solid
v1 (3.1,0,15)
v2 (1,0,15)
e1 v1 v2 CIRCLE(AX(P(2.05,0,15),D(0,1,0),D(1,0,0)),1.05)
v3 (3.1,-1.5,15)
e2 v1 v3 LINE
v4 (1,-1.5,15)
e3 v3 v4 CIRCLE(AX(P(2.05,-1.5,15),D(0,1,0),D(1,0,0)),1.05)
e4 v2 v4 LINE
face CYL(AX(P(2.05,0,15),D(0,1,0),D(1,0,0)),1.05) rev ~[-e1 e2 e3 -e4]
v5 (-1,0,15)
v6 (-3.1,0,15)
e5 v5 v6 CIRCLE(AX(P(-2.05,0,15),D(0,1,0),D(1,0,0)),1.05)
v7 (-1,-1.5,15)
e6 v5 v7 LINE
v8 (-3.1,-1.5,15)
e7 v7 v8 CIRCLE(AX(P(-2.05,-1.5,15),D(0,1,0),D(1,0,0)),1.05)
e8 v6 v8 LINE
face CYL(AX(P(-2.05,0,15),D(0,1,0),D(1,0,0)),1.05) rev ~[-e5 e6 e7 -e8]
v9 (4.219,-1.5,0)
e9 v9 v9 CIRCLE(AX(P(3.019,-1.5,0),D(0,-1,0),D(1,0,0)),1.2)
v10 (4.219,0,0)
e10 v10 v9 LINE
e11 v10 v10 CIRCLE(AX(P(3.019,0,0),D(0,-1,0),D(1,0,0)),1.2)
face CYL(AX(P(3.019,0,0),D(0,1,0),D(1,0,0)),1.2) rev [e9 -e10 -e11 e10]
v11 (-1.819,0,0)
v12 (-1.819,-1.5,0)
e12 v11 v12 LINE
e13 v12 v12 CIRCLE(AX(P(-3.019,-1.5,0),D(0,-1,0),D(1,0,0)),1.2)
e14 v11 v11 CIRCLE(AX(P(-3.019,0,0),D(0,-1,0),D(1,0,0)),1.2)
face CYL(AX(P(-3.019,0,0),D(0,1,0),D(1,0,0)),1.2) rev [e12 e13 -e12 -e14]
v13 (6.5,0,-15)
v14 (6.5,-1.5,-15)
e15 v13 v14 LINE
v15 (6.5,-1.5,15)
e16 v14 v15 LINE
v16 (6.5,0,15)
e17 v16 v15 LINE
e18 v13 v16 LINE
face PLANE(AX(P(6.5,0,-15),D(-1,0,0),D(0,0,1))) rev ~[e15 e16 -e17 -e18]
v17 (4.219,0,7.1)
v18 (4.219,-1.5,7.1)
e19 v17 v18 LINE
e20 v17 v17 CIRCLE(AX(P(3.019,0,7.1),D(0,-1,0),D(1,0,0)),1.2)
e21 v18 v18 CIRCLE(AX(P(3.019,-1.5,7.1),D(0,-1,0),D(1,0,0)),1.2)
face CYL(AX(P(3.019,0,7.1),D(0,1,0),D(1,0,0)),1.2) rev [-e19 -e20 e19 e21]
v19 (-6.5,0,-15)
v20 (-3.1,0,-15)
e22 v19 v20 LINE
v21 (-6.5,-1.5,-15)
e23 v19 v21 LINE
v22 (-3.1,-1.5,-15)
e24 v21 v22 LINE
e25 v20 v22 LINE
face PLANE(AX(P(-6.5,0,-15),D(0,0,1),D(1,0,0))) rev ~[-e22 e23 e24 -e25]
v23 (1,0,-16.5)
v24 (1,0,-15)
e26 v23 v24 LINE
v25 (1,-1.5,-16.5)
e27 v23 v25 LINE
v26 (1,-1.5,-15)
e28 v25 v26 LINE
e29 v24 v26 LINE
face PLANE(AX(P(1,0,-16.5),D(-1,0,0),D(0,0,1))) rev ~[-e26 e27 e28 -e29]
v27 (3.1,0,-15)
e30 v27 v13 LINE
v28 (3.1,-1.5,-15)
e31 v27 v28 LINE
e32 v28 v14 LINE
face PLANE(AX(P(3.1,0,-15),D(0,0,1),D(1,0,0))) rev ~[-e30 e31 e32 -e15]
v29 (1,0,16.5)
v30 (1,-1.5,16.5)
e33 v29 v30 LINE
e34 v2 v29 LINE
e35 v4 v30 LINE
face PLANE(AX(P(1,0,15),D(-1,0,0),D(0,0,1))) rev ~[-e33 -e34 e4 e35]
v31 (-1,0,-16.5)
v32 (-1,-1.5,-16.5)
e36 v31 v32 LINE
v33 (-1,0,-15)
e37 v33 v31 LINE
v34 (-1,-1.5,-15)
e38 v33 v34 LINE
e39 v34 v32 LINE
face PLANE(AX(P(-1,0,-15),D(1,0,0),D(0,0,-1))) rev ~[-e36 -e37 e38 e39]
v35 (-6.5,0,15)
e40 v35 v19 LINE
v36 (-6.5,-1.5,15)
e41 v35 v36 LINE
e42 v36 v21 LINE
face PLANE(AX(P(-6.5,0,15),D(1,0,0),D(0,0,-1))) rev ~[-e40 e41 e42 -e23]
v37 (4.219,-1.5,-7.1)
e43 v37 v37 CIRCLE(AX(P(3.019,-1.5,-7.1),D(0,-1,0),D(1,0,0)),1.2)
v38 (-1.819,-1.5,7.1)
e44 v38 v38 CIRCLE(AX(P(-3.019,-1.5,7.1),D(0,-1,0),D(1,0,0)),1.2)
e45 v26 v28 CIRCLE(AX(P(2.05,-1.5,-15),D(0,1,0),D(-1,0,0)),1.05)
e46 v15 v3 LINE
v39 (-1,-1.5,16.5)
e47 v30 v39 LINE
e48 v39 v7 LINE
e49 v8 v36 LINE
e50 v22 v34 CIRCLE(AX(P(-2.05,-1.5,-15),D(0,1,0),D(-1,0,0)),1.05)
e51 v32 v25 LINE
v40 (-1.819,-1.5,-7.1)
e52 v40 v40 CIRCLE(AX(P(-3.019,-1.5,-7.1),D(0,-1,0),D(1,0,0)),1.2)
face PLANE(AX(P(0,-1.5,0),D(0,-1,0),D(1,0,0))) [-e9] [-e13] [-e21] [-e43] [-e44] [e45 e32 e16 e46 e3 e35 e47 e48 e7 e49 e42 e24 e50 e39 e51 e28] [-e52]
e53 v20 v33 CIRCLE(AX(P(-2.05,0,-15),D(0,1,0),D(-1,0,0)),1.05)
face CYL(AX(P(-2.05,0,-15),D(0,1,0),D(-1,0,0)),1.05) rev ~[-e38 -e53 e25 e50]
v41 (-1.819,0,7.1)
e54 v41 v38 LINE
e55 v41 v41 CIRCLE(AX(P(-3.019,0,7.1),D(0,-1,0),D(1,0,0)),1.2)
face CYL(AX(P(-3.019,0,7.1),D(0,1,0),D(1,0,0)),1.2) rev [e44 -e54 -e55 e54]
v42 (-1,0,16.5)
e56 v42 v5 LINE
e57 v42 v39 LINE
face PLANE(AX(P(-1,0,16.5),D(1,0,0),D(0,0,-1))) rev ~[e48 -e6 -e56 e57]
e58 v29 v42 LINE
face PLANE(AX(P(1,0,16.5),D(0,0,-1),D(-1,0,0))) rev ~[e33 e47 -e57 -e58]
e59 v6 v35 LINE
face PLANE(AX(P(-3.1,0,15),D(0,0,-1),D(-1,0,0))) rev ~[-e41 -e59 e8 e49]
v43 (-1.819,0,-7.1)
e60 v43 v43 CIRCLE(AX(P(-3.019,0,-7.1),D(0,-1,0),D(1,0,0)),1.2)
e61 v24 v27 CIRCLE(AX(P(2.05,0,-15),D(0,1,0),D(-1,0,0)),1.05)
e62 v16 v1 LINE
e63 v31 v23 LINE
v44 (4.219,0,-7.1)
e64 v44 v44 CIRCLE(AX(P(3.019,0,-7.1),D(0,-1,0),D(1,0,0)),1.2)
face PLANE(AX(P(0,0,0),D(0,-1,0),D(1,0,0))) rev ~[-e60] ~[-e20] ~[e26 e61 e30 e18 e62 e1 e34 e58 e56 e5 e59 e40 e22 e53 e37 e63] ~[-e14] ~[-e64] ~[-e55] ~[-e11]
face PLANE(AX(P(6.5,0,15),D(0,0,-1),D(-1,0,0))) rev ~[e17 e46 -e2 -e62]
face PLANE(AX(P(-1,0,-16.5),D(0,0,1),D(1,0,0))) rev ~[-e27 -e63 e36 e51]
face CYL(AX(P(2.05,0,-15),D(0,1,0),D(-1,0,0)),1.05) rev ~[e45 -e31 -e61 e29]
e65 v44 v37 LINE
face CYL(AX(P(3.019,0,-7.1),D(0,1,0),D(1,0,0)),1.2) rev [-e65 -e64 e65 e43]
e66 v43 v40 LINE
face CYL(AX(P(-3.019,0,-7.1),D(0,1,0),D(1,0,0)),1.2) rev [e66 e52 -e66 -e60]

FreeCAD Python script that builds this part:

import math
import FreeCAD as App
import Part
import Sketcher
from FreeCAD import Vector
Q = App.Units.Quantity

doc = App.newDocument("Part")
body = doc.addObject("PartDesign::Body", "Body")

# Sketch on XZ plane
sketch1 = body.newObject("Sketcher::SketchObject", "Sketch")
sketch1.AttachmentSupport = (doc.getObject("XZ_Plane"), [""])
sketch1.MapMode = "FlatFace"
sketch1.addGeometry(Part.ArcOfCircle(Part.Circle(Vector(-2, 15, 0), Vector(0, 0, 1), 1.1), math.radians(180), math.radians(360)), False)
sketch1.addGeometry(Part.LineSegment(Vector(-3.1, 15, 0), Vector(-6.5, 15, 0)), False)
sketch1.addGeometry(Part.LineSegment(Vector(-6.5, 15, 0), Vector(-6.5, -15, 0)), False)
sketch1.addGeometry(Part.LineSegment(Vector(-6.5, -15, 0), Vector(-3.1, -15, 0)), False)
sketch1.addGeometry(Part.ArcOfCircle(Part.Circle(Vector(-2, -15, 0), Vector(0, 0, 1), 1.1), math.radians(0), math.radians(180)), False)
sketch1.addGeometry(Part.LineSegment(Vector(-1, -15, 0), Vector(-1, -16.5, 0)), False)
sketch1.addGeometry(Part.LineSegment(Vector(-1, -16.5, 0), Vector(1, -16.5, 0)), False)
sketch1.addGeometry(Part.LineSegment(Vector(1, -16.5, 0), Vector(1, -15, 0)), False)
sketch1.addGeometry(Part.ArcOfCircle(Part.Circle(Vector(2, -15, 0), Vector(0, 0, 1), 1.1), math.radians(0), math.radians(180)), False)
sketch1.addGeometry(Part.LineSegment(Vector(3.1, -15, 0), Vector(6.5, -15, 0)), False)
sketch1.addGeometry(Part.LineSegment(Vector(6.5, -15, 0), Vector(6.5, 15, 0)), False)
sketch1.addGeometry(Part.LineSegment(Vector(6.5, 15, 0), Vector(3.1, 15, 0)), False)
sketch1.addGeometry(Part.ArcOfCircle(Part.Circle(Vector(2, 15, 0), Vector(0, 0, 1), 1.1), math.radians(180), math.radians(360)), False)
sketch1.addGeometry(Part.LineSegment(Vector(1, 15, 0), Vector(1, 16.5, 0)), False)
sketch1.addGeometry(Part.LineSegment(Vector(1, 16.5, 0), Vector(-1, 16.5, 0)), False)
sketch1.addGeometry(Part.LineSegment(Vector(-1, 16.5, 0), Vector(-1, 15, 0)), False)
sketch1.addGeometry(Part.Circle(Vector(-3, -7.1, 0), Vector(0, 0, 1), 1.2), False)
sketch1.addGeometry(Part.Circle(Vector(3, -7.1, 0), Vector(0, 0, 1), 1.2), False)
sketch1.addGeometry(Part.Circle(Vector(-3, 0, 0), Vector(0, 0, 1), 1.2), False)
sketch1.addGeometry(Part.Circle(Vector(-3, 7.1, 0), Vector(0, 0, 1), 1.2), False)
sketch1.addGeometry(Part.Circle(Vector(3, 0, 0), Vector(0, 0, 1), 1.2), False)
sketch1.addGeometry(Part.Circle(Vector(3, 7.1, 0), Vector(0, 0, 1), 1.2), False)
sketch1.addConstraint(Sketcher.Constraint("Coincident", 0, 1, 1, 1))
sketch1.addConstraint(Sketcher.Constraint("Coincident", 1, 2, 2, 1))
sketch1.addConstraint(Sketcher.Constraint("Coincident", 2, 2, 3, 1))
sketch1.addConstraint(Sketcher.Constraint("Coincident", 3, 2, 4, 2))
sketch1.addConstraint(Sketcher.Constraint("Tangent", 4, 1, 5, 1))
sketch1.addConstraint(Sketcher.Constraint("Coincident", 5, 2, 6, 1))
sketch1.addConstraint(Sketcher.Constraint("Coincident", 6, 2, 7, 1))
sketch1.addConstraint(Sketcher.Constraint("Tangent", 7, 2, 8, 2))
sketch1.addConstraint(Sketcher.Constraint("Coincident", 8, 1, 9, 1))
sketch1.addConstraint(Sketcher.Constraint("Coincident", 9, 2, 10, 1))
sketch1.addConstraint(Sketcher.Constraint("Coincident", 10, 2, 11, 1))
sketch1.addConstraint(Sketcher.Constraint("Coincident", 11, 2, 12, 2))
sketch1.addConstraint(Sketcher.Constraint("Tangent", 12, 1, 13, 1))
sketch1.addConstraint(Sketcher.Constraint("Coincident", 13, 2, 14, 1))
sketch1.addConstraint(Sketcher.Constraint("Coincident", 14, 2, 15, 1))
sketch1.addConstraint(Sketcher.Constraint("Tangent", 15, 2, 0, 2))
sketch1.addConstraint(Sketcher.Constraint("Horizontal", 1))
sketch1.addConstraint(Sketcher.Constraint("Vertical", 2))
sketch1.addConstraint(Sketcher.Constraint("Horizontal", 3))
sketch1.addConstraint(Sketcher.Constraint("Vertical", 5))
sketch1.addConstraint(Sketcher.Constraint("Horizontal", 6))
sketch1.addConstraint(Sketcher.Constraint("Vertical", 7))
sketch1.addConstraint(Sketcher.Constraint("Horizontal", 9))
sketch1.addConstraint(Sketcher.Constraint("Vertical", 10))
sketch1.addConstraint(Sketcher.Constraint("Horizontal", 11))
sketch1.addConstraint(Sketcher.Constraint("Vertical", 13))
sketch1.addConstraint(Sketcher.Constraint("Horizontal", 14))
sketch1.addConstraint(Sketcher.Constraint("Vertical", 15))
sketch1.addConstraint(Sketcher.Constraint("Equal", 0, 4))
sketch1.addConstraint(Sketcher.Constraint("Equal", 4, 8))
sketch1.addConstraint(Sketcher.Constraint("Equal", 8, 12))
sketch1.addConstraint(Sketcher.Constraint("Equal", 16, 17))
sketch1.addConstraint(Sketcher.Constraint("Equal", 17, 18))
sketch1.addConstraint(Sketcher.Constraint("Equal", 18, 19))
sketch1.addConstraint(Sketcher.Constraint("Equal", 19, 20))
sketch1.addConstraint(Sketcher.Constraint("Equal", 20, 21))
sketch1.addConstraint(Sketcher.Constraint("Symmetric", 0, 3, 8, 3, -1, 1))
sketch1.addConstraint(Sketcher.Constraint("Symmetric", 4, 3, 12, 3, -1, 1))
sketch1.addConstraint(Sketcher.Constraint("Symmetric", 17, 3, 19, 3, -1, 1))
sketch1.addConstraint(Sketcher.Constraint("Symmetric", 18, 3, 20, 3, -1, 1))
sketch1.addConstraint(Sketcher.Constraint("Symmetric", 16, 3, 21, 3, -1, 1))
sketch1.addConstraint(Sketcher.Constraint("Symmetric", 1, 2, 9, 2, -1, 1))
sketch1.addConstraint(Sketcher.Constraint("Symmetric", 4, 3, 8, 3, -2))
sketch1.addConstraint(Sketcher.Constraint("Symmetric", 16, 3, 17, 3, -2))
sketch1.addConstraint(Sketcher.Constraint("PointOnObject", 18, 3, -1))
sketch1.addConstraint(Sketcher.Constraint("Horizontal", 12, 3, 0, 1))
sketch1.addConstraint(Sketcher.Constraint("Horizontal", 8, 3, 2, 2))
sketch1.addConstraint(Sketcher.Constraint("Horizontal", 1, 2, 10, 2))
sketch1.addConstraint(Sketcher.Constraint("Vertical", 16, 3, 18, 3))
sketch1.addConstraint(Sketcher.Constraint("Equal", 7, 13))
sketch1.addConstraint(Sketcher.Constraint("Diameter", 16, Q("2.4 mm")))
sketch1.addConstraint(Sketcher.Constraint("DistanceX", 6, 1, 6, 2, Q("2 mm")))
sketch1.addConstraint(Sketcher.Constraint("DistanceY", 2, 2, 2, 1, Q("30 mm")))
sketch1.addConstraint(Sketcher.Constraint("Radius", 0, Q("1.05 mm")))
sketch1.addConstraint(Sketcher.Constraint("DistanceX", 1, 2, 1, 1, Q("3.4 mm")))
sketch1.addConstraint(Sketcher.Constraint("DistanceY", 5, 2, 5, 1, Q("1.5 mm")))
sketch1.addConstraint(Sketcher.Constraint("DistanceY", 16, 3, -1, 1, Q("7.1 mm")))
sketch1.addConstraint(Sketcher.Constraint("DistanceX", 16, 3, -1, 1, Q("3.019 mm")))
pad1 = body.newObject("PartDesign::Pad", "Pad")
pad1.Profile = sketch1
pad1.Length = 1.5

doc.recompute()
